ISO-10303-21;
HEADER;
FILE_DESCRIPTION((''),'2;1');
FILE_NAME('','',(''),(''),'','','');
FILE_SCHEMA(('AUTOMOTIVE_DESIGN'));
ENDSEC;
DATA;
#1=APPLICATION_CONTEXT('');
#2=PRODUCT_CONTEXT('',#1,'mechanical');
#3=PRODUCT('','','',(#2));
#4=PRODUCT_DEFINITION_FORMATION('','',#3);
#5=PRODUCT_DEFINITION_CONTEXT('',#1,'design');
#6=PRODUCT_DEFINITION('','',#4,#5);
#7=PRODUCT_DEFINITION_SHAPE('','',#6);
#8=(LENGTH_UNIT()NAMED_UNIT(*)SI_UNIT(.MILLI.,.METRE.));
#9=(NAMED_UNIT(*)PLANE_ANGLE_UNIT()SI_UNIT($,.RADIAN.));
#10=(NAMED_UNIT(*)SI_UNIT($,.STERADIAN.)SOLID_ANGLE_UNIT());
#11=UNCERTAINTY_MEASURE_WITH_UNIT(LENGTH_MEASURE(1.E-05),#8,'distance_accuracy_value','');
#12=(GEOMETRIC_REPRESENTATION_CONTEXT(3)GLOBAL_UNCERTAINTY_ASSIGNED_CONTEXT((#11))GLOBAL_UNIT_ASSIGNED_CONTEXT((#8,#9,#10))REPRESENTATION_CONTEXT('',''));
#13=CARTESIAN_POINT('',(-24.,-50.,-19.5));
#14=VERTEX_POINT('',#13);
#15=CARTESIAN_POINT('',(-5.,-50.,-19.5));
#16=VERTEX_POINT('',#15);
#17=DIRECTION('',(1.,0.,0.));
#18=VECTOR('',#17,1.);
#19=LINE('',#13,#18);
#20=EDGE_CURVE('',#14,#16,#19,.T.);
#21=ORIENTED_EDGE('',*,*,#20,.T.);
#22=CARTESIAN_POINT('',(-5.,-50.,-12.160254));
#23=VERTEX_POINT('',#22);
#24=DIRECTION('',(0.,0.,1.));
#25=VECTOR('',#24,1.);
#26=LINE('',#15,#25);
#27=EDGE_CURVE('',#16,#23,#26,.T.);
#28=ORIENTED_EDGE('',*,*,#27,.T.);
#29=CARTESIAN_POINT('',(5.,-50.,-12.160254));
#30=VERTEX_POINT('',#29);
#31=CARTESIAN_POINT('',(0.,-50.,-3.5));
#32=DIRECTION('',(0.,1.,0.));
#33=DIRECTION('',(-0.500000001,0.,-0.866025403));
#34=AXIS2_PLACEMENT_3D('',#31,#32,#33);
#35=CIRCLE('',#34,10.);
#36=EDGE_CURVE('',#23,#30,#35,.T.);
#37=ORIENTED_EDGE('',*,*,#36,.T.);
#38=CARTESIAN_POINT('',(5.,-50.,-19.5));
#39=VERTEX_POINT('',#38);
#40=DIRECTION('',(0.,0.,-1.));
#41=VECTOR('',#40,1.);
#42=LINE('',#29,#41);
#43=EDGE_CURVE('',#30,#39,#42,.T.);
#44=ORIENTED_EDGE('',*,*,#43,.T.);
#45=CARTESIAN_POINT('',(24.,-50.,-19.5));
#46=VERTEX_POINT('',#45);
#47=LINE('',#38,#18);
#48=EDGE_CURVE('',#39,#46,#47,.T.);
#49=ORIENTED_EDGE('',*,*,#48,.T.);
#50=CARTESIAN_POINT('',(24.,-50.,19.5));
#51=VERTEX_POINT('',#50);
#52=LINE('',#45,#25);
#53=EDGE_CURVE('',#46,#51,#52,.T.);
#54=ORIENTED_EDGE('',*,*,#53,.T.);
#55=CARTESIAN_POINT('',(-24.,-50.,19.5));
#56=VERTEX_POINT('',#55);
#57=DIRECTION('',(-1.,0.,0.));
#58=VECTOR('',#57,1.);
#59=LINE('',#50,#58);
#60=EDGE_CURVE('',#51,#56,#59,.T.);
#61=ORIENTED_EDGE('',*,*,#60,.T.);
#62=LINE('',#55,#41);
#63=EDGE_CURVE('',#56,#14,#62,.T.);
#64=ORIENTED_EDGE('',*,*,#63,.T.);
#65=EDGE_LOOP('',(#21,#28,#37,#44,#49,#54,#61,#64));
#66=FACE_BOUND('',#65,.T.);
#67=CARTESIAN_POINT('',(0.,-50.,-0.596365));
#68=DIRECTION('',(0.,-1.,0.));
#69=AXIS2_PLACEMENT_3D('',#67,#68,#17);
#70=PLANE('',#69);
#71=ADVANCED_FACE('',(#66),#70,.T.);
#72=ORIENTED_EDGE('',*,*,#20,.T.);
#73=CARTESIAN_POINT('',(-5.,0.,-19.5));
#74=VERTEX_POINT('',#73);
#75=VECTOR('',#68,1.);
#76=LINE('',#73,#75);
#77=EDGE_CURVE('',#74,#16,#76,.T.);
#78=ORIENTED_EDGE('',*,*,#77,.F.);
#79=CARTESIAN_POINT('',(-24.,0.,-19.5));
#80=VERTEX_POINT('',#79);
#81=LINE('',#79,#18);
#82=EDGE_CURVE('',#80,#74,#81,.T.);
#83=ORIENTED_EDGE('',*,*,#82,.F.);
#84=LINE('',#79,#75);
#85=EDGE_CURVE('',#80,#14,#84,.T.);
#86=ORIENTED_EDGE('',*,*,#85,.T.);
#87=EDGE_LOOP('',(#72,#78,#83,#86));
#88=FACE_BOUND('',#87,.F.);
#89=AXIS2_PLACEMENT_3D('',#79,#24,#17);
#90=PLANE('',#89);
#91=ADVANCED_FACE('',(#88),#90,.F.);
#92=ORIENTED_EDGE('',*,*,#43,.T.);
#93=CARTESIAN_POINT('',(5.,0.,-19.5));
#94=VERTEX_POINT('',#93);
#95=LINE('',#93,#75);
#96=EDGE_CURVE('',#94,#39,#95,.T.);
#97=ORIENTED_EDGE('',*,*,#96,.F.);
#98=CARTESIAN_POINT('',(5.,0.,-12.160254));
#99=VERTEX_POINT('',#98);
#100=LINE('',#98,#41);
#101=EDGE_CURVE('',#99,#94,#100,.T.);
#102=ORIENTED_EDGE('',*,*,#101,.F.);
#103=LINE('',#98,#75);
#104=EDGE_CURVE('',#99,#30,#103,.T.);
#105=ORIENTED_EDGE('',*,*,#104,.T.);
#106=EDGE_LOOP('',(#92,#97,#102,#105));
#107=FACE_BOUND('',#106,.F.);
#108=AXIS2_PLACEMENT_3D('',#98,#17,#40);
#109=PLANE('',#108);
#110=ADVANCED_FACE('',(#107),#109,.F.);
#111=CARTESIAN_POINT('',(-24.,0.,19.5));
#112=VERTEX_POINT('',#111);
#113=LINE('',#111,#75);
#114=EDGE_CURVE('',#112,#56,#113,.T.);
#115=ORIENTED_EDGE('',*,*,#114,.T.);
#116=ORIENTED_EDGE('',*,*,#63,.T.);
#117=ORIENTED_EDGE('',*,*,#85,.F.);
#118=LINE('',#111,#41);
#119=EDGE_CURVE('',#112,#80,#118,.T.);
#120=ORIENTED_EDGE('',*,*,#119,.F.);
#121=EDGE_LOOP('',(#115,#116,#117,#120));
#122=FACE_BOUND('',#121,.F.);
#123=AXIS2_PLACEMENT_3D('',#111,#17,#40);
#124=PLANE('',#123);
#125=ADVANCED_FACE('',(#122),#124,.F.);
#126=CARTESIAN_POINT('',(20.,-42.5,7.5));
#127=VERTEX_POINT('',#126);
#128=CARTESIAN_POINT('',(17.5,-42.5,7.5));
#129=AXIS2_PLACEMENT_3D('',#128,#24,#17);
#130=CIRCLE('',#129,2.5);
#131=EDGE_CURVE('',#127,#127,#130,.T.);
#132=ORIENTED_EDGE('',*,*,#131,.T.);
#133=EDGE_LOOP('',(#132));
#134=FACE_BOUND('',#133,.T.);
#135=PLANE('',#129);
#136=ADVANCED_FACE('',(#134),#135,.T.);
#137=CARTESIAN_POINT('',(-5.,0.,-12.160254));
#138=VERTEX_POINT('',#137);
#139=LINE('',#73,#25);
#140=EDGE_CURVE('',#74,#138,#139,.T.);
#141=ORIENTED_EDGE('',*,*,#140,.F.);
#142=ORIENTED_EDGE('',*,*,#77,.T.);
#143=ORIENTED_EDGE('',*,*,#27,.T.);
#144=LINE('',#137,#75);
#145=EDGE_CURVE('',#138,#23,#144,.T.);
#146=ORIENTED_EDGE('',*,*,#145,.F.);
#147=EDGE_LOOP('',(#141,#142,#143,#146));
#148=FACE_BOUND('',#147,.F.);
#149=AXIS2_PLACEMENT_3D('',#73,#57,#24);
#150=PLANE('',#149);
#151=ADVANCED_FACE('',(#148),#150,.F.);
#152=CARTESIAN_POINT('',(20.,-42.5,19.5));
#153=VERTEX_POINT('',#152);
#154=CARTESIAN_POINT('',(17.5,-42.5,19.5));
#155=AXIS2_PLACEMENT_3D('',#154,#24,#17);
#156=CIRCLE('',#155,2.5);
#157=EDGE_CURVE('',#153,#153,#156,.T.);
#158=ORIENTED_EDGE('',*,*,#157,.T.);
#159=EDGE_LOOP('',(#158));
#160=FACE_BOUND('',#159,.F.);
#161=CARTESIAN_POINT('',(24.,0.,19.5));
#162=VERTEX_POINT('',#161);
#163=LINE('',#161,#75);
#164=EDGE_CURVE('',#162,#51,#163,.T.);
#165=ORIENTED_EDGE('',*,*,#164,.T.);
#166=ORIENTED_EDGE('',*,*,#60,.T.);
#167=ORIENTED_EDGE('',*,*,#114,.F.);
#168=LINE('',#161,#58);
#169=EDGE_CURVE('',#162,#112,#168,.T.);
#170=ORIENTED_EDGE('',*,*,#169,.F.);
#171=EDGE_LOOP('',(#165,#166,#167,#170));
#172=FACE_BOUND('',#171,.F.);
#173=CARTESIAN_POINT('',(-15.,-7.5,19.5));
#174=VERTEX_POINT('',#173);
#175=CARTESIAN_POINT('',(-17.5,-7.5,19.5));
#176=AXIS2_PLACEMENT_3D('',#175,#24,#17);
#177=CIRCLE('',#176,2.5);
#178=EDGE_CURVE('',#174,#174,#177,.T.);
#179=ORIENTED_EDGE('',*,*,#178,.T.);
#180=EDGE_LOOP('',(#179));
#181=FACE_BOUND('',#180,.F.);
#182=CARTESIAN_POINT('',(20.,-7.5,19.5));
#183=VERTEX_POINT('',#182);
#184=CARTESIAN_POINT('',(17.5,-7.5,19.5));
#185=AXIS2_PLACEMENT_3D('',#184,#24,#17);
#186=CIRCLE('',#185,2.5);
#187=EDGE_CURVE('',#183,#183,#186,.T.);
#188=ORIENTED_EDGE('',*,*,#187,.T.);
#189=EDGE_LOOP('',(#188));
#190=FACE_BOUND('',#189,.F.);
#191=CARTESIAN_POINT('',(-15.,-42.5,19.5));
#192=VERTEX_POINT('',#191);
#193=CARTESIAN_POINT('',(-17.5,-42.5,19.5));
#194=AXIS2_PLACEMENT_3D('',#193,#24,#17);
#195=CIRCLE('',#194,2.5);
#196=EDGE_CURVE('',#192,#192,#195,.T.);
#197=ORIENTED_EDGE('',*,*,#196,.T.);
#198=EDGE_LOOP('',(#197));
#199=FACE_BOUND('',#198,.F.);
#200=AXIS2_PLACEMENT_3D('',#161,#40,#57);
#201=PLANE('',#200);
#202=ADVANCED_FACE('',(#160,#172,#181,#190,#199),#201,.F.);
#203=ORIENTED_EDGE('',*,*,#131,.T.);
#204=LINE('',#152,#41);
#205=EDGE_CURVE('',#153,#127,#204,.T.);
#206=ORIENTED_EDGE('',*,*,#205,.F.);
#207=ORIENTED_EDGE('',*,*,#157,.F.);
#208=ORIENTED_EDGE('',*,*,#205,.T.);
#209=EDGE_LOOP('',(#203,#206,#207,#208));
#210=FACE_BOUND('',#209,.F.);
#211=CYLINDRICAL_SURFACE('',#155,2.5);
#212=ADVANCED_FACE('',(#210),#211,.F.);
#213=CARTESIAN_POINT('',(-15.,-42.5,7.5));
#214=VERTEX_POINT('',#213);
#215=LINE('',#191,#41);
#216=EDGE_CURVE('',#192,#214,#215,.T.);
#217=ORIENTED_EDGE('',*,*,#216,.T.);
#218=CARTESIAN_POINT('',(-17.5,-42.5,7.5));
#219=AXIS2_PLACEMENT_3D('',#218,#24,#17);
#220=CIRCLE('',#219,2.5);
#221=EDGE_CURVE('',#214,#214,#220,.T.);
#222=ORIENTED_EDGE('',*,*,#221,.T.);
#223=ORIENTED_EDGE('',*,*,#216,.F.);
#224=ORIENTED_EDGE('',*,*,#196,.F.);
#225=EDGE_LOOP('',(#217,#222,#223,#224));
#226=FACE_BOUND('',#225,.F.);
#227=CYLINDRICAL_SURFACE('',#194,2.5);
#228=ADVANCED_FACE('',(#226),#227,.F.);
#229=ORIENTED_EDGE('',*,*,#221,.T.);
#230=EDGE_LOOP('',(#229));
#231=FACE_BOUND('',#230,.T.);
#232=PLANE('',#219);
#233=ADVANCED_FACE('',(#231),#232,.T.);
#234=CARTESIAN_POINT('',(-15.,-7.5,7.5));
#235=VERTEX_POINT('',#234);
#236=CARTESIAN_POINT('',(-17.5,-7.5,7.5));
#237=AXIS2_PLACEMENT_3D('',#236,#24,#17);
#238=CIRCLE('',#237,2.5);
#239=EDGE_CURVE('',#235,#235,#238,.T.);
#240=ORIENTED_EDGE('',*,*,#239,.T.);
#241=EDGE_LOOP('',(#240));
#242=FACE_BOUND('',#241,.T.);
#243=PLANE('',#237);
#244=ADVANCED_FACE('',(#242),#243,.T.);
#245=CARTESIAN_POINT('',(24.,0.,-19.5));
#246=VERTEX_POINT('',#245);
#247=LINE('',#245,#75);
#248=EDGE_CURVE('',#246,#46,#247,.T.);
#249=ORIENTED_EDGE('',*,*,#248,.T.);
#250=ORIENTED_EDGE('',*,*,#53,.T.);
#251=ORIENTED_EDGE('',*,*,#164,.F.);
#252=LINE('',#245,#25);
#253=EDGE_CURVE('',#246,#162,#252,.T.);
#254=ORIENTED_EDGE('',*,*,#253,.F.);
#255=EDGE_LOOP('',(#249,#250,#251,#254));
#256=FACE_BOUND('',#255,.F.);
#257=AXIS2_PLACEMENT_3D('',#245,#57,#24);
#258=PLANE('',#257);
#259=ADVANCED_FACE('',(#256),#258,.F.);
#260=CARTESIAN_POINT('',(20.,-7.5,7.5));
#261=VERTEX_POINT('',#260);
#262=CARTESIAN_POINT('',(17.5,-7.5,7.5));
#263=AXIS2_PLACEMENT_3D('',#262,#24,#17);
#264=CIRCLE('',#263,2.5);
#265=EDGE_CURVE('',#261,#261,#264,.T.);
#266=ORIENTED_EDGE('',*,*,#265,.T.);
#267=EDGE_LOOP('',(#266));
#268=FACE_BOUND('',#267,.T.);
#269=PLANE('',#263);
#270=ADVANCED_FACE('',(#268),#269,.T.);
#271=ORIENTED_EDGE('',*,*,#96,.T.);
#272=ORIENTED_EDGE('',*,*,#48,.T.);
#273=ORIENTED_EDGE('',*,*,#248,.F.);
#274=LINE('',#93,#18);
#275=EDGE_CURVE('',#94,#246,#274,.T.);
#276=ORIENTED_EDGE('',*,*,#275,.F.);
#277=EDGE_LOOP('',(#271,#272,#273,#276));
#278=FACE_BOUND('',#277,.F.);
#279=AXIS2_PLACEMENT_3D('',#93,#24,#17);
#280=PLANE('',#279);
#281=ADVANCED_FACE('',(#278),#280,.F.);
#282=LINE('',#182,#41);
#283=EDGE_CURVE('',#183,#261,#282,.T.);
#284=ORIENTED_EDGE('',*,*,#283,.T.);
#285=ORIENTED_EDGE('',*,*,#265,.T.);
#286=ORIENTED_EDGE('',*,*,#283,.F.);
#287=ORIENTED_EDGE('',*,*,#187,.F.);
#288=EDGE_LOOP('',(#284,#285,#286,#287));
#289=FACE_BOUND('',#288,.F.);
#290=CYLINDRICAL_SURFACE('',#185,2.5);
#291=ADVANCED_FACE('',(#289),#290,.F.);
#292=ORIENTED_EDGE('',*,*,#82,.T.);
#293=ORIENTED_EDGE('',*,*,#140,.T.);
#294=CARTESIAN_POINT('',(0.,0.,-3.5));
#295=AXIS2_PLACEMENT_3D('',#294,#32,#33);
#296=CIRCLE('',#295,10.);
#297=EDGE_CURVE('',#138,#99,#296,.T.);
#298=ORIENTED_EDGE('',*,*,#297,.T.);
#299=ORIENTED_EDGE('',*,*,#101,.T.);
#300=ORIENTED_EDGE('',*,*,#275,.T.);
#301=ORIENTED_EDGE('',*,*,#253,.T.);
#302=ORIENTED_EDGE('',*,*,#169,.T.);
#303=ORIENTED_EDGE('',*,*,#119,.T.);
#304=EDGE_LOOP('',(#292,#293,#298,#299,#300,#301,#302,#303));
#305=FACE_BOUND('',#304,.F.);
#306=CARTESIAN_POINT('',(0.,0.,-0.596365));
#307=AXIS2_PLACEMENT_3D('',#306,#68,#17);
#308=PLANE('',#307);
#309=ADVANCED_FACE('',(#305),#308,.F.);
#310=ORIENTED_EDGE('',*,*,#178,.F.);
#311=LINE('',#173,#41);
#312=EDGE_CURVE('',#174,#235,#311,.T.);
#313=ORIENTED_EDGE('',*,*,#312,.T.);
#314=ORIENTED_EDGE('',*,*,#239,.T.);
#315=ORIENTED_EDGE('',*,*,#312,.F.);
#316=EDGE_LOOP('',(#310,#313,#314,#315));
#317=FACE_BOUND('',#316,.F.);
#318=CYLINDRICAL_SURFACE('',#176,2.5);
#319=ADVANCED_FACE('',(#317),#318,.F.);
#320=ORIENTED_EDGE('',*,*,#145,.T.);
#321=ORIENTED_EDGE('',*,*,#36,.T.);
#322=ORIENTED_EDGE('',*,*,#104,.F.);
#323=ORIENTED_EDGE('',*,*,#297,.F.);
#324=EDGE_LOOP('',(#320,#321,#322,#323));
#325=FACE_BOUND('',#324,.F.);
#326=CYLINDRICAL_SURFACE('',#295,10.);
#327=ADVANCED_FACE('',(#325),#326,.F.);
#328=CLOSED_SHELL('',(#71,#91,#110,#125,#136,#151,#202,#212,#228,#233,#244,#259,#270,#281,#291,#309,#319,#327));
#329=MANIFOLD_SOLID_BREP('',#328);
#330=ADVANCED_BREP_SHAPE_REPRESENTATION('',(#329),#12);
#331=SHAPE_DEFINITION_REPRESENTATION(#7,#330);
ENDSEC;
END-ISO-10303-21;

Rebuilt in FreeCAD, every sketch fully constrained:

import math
import FreeCAD as App
import Part
import Sketcher

V = App.Vector

doc = App.newDocument("Part")
body = doc.addObject("PartDesign::Body", "Body")

sketch1 = body.newObject("Sketcher::SketchObject", "Sketch")
sketch1.AttachmentSupport = (doc.getObject("XZ_Plane"), [""])
sketch1.MapMode = "FlatFace"
sketch1.addGeometry(Part.LineSegment(V(24, -19.5, 0), V(24, 19.5, 0)), False)
sketch1.addGeometry(Part.LineSegment(V(24, 19.5, 0), V(-24, 19.5, 0)), False)
sketch1.addGeometry(Part.LineSegment(V(-24, 19.5, 0), V(-24, -19.5, 0)), False)
sketch1.addGeometry(Part.LineSegment(V(-24, -19.5, 0), V(-5, -19.5, 0)), False)
sketch1.addGeometry(Part.LineSegment(V(-5, -19.5, 0), V(-5, -12.160254, 0)), False)
sketch1.addGeometry(Part.ArcOfCircle(Part.Circle(V(0, -3.5, 0), V(0, 0, 1), 10), math.radians(-60), math.radians(240)), False)
sketch1.addGeometry(Part.LineSegment(V(5, -12.160254, 0), V(5, -19.5, 0)), False)
sketch1.addGeometry(Part.LineSegment(V(5, -19.5, 0), V(24, -19.5, 0)), False)
sketch1.addConstraint(Sketcher.Constraint("Coincident", 0, 2, 1, 1))
sketch1.addConstraint(Sketcher.Constraint("Coincident", 1, 2, 2, 1))
sketch1.addConstraint(Sketcher.Constraint("Coincident", 2, 2, 3, 1))
sketch1.addConstraint(Sketcher.Constraint("Coincident", 3, 2, 4, 1))
sketch1.addConstraint(Sketcher.Constraint("Coincident", 4, 2, 5, 2))
sketch1.addConstraint(Sketcher.Constraint("Coincident", 5, 1, 6, 1))
sketch1.addConstraint(Sketcher.Constraint("Coincident", 6, 2, 7, 1))
sketch1.addConstraint(Sketcher.Constraint("Coincident", 7, 2, 0, 1))
sketch1.addConstraint(Sketcher.Constraint("Vertical", 0))
sketch1.addConstraint(Sketcher.Constraint("Horizontal", 1))
sketch1.addConstraint(Sketcher.Constraint("Vertical", 2))
sketch1.addConstraint(Sketcher.Constraint("Horizontal", 3))
sketch1.addConstraint(Sketcher.Constraint("Vertical", 4))
sketch1.addConstraint(Sketcher.Constraint("Vertical", 6))
sketch1.addConstraint(Sketcher.Constraint("Horizontal", 7))
sketch1.addConstraint(Sketcher.Constraint("Symmetric", 0, 2, 2, 2, -1, 1))
sketch1.addConstraint(Sketcher.Constraint("Symmetric", 4, 2, 5, 1, -2))
sketch1.addConstraint(Sketcher.Constraint("Horizontal", 3, 2, 6, 2))
sketch1.addConstraint(Sketcher.Constraint("Radius", 5, 10.0))
sketch1.addConstraint(Sketcher.Constraint("DistanceX", 1, 2, 1, 1, 48.0))
sketch1.addConstraint(Sketcher.Constraint("DistanceX", 3, 1, 3, 2, 19.0))
sketch1.addConstraint(Sketcher.Constraint("DistanceY", 0, 1, 0, 2, 39.0))
sketch1.addConstraint(Sketcher.Constraint("DistanceY", 5, 3, 0, 2, 23.0))
pad1 = body.newObject("PartDesign::Pad", "Pad")
pad1.Profile = sketch1
pad1.Length = 50

sketch2 = body.newObject("Sketcher::SketchObject", "Sketch001")
sketch2.AttachmentSupport = (doc.getObject("XY_Plane"), [""])
sketch2.MapMode = "FlatFace"
sketch2.AttachmentOffset = App.Placement(V(0, 0, 19.5), App.Rotation())
sketch2.addGeometry(Part.Circle(V(-17.5, -42.5, 0), V(0, 0, 1), 2.5), False)
sketch2.addGeometry(Part.Circle(V(-17.5, -7.5, 0), V(0, 0, 1), 2.5), False)
sketch2.addGeometry(Part.Circle(V(17.5, -7.5, 0), V(0, 0, 1), 2.5), False)
sketch2.addGeometry(Part.Circle(V(17.5, -42.5, 0), V(0, 0, 1), 2.5), False)
sketch2.addConstraint(Sketcher.Constraint("Equal", 0, 1))
sketch2.addConstraint(Sketcher.Constraint("Equal", 1, 2))
sketch2.addConstraint(Sketcher.Constraint("Equal", 2, 3))
sketch2.addConstraint(Sketcher.Constraint("Symmetric", 1, 3, 2, 3, -2))
sketch2.addConstraint(Sketcher.Constraint("Symmetric", 0, 3, 3, 3, -2))
sketch2.addConstraint(Sketcher.Constraint("Vertical", 0, 3, 1, 3))
sketch2.addConstraint(Sketcher.Constraint("Diameter", 0, 5.0))
sketch2.addConstraint(Sketcher.Constraint("DistanceY", 0, 3, 1, 3, 35.0))
sketch2.addConstraint(Sketcher.Constraint("DistanceX", 1, 3, 2, 3, 35.0))
sketch2.addConstraint(Sketcher.Constraint("DistanceY", 0, 3, -1, 1, 42.5))
pocket1 = body.newObject("PartDesign::Pocket", "Pocket")
pocket1.Profile = sketch2
pocket1.Length = 12

doc.recompute()
